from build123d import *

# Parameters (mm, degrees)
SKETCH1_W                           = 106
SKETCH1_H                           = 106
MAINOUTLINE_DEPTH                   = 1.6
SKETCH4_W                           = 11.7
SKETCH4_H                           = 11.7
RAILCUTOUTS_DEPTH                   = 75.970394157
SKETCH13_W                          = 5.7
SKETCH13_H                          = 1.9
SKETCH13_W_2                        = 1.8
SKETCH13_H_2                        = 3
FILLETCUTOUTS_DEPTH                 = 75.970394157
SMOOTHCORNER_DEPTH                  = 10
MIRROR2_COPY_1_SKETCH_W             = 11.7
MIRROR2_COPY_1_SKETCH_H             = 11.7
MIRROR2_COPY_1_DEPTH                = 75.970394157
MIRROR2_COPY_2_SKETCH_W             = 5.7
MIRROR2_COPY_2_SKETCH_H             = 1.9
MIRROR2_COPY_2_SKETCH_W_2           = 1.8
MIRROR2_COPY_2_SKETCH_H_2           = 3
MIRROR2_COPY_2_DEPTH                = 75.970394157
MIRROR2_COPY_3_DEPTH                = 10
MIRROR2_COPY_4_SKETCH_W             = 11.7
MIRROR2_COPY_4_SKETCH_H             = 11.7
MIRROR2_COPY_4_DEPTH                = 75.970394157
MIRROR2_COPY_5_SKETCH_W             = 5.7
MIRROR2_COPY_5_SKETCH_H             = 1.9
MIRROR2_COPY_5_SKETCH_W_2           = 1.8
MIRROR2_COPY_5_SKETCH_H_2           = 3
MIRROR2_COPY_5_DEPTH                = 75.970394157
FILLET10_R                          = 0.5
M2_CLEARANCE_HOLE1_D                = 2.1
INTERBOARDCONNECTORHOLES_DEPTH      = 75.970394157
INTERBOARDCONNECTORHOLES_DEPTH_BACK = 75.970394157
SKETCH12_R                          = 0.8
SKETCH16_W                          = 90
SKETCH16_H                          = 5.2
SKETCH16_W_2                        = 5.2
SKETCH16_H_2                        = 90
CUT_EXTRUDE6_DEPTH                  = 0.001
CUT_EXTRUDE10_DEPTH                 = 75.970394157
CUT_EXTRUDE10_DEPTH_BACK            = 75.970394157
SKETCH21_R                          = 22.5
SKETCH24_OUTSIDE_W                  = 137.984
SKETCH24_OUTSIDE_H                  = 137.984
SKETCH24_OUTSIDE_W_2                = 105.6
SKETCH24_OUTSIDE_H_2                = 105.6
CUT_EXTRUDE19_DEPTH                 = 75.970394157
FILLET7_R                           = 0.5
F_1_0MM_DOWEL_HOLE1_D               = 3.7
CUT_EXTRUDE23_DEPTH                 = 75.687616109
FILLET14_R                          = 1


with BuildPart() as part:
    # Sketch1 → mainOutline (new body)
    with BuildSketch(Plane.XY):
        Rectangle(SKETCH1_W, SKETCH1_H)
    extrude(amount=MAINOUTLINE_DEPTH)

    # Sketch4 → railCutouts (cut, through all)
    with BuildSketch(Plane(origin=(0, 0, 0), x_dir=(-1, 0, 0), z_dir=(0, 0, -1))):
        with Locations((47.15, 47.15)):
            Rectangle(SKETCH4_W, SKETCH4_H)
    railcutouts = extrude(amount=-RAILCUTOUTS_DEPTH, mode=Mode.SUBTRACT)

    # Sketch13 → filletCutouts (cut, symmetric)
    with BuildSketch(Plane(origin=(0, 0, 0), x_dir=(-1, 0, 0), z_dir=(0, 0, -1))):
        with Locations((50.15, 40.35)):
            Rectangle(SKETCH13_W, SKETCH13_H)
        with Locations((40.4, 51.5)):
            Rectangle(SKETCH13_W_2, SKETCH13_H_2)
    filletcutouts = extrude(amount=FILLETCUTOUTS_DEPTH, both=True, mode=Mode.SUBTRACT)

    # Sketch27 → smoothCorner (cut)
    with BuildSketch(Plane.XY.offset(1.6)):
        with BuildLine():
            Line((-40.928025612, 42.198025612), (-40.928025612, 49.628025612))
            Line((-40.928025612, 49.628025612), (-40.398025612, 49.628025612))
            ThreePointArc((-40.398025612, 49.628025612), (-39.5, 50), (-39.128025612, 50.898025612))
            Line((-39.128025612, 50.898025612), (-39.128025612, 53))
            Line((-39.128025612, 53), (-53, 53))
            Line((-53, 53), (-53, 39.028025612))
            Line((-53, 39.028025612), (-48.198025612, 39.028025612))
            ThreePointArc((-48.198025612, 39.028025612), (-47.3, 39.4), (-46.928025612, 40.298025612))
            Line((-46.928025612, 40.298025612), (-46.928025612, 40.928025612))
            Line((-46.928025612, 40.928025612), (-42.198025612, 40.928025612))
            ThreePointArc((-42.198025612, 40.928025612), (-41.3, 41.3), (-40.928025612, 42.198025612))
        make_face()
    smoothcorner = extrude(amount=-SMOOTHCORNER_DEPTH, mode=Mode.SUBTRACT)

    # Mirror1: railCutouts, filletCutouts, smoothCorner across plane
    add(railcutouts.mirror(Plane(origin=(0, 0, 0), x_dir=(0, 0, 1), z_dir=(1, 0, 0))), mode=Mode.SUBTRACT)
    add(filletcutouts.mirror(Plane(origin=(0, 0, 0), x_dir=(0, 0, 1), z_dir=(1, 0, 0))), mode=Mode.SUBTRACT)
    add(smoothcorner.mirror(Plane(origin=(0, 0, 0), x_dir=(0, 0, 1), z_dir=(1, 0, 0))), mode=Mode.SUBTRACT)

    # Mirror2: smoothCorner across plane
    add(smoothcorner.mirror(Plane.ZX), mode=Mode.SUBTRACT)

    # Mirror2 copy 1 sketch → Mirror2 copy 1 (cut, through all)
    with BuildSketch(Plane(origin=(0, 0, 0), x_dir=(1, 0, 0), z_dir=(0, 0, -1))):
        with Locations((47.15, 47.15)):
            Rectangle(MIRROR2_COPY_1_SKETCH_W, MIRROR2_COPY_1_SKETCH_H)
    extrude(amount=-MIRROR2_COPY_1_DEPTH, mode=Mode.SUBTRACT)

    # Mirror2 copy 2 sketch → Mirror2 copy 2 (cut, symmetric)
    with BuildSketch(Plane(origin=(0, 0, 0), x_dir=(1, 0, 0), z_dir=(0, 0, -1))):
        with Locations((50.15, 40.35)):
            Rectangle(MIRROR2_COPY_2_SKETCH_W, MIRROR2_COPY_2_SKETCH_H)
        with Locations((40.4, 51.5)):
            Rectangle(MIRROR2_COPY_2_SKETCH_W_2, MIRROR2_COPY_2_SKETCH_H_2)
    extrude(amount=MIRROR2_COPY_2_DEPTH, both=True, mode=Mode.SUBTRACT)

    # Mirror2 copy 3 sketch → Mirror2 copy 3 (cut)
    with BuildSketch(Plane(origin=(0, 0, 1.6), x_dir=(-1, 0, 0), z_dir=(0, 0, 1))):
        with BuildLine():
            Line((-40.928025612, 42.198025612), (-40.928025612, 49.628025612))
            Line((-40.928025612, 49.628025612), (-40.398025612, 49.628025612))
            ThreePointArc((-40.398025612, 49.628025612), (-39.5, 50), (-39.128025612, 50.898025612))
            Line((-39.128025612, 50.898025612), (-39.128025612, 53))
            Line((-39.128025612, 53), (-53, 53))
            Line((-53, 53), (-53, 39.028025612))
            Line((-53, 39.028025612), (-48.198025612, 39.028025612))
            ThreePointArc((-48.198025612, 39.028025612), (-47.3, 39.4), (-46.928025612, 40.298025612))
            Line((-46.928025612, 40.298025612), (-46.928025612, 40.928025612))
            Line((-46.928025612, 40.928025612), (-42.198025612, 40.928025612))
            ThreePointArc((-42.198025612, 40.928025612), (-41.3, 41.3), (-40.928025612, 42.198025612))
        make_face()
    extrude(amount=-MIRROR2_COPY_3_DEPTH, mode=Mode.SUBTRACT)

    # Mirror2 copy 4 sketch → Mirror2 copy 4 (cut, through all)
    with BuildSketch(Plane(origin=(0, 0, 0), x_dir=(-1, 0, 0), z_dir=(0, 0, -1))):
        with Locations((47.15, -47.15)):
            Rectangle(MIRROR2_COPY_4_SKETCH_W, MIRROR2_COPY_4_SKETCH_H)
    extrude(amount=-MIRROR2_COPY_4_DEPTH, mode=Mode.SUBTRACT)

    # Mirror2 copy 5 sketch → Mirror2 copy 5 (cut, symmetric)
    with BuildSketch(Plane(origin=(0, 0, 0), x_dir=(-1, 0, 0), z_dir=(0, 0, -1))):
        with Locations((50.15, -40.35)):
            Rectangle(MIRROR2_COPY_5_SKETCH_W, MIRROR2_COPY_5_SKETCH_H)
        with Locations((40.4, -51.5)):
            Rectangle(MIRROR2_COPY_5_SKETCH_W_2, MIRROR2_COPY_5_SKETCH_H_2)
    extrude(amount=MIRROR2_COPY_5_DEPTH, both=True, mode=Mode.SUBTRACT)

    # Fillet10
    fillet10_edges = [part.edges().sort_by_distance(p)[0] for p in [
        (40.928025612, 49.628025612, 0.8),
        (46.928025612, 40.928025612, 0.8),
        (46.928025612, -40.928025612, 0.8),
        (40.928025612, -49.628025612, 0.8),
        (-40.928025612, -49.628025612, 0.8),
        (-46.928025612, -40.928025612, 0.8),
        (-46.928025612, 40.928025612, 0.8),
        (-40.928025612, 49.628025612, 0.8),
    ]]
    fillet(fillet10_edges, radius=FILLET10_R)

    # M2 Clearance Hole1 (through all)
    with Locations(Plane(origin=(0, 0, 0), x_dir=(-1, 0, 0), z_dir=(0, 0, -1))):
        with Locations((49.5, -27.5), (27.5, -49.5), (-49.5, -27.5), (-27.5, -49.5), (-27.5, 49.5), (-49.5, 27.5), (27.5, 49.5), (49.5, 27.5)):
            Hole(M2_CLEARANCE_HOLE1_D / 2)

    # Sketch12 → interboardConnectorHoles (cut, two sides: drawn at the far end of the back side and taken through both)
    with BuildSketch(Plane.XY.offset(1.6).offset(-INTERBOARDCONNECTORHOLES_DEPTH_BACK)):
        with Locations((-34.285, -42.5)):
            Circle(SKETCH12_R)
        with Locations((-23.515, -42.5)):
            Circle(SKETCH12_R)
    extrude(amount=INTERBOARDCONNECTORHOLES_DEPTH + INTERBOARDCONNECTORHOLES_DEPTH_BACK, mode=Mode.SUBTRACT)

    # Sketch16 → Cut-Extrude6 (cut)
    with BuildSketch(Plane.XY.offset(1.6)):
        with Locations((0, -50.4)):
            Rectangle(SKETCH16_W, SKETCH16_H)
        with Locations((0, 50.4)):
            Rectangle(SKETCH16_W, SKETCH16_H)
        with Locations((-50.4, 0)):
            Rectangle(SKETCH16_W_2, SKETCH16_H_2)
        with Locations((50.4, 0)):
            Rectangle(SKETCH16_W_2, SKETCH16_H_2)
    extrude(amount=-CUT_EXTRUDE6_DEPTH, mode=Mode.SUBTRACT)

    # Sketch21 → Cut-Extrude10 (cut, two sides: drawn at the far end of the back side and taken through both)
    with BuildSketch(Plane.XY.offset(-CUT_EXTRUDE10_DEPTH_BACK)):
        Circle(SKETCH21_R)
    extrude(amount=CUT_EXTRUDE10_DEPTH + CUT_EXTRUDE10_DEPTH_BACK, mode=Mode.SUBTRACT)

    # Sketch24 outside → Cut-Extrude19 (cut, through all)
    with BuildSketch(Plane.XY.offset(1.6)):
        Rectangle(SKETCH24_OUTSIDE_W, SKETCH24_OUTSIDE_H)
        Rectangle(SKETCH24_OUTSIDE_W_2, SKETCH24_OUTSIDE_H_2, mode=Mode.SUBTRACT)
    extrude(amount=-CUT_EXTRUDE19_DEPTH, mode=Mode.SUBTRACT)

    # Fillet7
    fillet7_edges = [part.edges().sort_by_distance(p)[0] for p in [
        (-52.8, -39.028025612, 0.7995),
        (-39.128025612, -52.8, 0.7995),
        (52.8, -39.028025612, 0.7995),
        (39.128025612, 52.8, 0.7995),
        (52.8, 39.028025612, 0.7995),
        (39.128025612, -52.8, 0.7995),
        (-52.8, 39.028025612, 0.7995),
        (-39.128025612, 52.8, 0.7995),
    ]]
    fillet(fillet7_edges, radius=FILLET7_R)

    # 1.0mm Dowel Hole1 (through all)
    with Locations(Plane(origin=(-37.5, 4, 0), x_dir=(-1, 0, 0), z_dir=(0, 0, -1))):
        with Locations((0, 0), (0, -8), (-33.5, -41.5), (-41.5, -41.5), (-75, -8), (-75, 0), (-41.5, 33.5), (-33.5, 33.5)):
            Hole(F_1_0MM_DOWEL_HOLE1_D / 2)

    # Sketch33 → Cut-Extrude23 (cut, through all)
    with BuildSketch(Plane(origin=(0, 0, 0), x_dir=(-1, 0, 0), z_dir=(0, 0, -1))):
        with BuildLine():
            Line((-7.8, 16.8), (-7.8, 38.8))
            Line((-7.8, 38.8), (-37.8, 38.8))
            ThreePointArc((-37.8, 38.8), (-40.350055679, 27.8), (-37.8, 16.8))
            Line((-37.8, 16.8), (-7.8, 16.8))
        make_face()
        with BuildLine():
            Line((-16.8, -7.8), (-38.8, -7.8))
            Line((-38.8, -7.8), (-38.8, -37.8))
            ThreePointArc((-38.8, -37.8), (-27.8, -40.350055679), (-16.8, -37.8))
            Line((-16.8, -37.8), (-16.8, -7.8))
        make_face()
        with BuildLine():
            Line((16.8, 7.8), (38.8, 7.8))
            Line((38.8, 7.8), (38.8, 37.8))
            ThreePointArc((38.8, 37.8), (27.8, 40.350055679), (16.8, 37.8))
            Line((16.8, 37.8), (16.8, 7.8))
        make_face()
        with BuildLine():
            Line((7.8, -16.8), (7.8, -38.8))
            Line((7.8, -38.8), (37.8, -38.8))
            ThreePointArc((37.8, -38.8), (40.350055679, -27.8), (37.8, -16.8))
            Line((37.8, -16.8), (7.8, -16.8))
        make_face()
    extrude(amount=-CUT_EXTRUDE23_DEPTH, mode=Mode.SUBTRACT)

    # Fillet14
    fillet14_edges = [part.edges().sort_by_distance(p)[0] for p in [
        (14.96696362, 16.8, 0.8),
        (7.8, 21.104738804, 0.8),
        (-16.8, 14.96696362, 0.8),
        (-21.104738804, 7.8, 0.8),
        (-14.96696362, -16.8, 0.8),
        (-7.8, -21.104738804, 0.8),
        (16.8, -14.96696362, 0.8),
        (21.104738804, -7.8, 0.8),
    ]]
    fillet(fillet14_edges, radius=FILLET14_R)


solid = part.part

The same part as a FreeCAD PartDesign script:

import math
import FreeCAD as App
import Part
import Sketcher

V = App.Vector
Q = App.Units.Quantity


def edges_at(feature, points):
    """Names of the edges that pass closest to the given points."""
    edges = feature.Shape.Edges
    near = lambda p: min(range(len(edges)), key=lambda i: edges[i].distToShape(Part.Vertex(*p))[0])
    return sorted({f"Edge{near(p) + 1}" for p in points})


def add_polygon(sketch, points):
    """Adds a closed chain of lines whose ends are joined by coincident constraints."""
    first, n = sketch.GeometryCount, len(points)
    for a, b in zip(points, points[1:] + points[:1]):
        sketch.addGeometry(Part.LineSegment(App.Vector(*a, 0), App.Vector(*b, 0)), False)
    for i in range(n):
        sketch.addConstraint(Sketcher.Constraint("Coincident", first + i, 2, first + (i + 1) % n, 1))

doc = App.newDocument("Part")
body = doc.addObject("PartDesign::Body", "Body")

# Sketch on XY plane
sketch1 = doc.addObject("Sketcher::SketchObject", "Sketch")
body.addObject(sketch1)
sketch1.AttachmentSupport = (doc.XY_Plane, [""])
sketch1.MapMode = "FlatFace"
add_polygon(sketch1, [(-53, 53), (-53, -53), (53, -53), (53, 53)])  # lines 0-3
sketch1.addConstraint([
    Sketcher.Constraint("Vertical", 0),
    Sketcher.Constraint("Horizontal", 1),
    Sketcher.Constraint("Vertical", 2),
    Sketcher.Constraint("Horizontal", 3),
    Sketcher.Constraint("Symmetric", 0, 2, 2, 2, -1, 1),
    Sketcher.Constraint("Equal", 3, 0),
    Sketcher.Constraint("DistanceX", 1, 1, 1, 2, Q("106 mm")),
])
pad1 = doc.addObject("PartDesign::Pad", "Pad")
body.addObject(pad1)
pad1.Profile = sketch1
pad1.Length = 1.6

# Sketch on XY plane
sketch2 = doc.addObject("Sketcher::SketchObject", "Sketch001")
body.addObject(sketch2)
sketch2.AttachmentSupport = (doc.XY_Plane, [""])
sketch2.MapMode = "FlatFace"
add_polygon(sketch2, [(-41, 53), (-41, 41), (-53, 41), (-53, 53)])  # lines 0-3
sketch2.addConstraint([
    Sketcher.Constraint("Vertical", 0),
    Sketcher.Constraint("Horizontal", 1),
    Sketcher.Constraint("Vertical", 2),
    Sketcher.Constraint("Horizontal", 3),
    Sketcher.Constraint("Equal", 3, 0),
    Sketcher.Constraint("DistanceX", 1, 2, 1, 1, Q("11.7 mm")),
    Sketcher.Constraint("DistanceX", 1, 2, -1, 1, Q("53 mm")),
    Sketcher.Constraint("DistanceY", -1, 1, 2, 2, Q("53 mm")),
])
pocket1 = doc.addObject("PartDesign::Pocket", "Pocket")
body.addObject(pocket1)
pocket1.Profile = sketch2
pocket1.Type = "ThroughAll"
pocket1.Reversed = True

# Sketch on XY plane
sketch3 = doc.addObject("Sketcher::SketchObject", "Sketch002")
body.addObject(sketch3)
sketch3.AttachmentSupport = (doc.XY_Plane, [""])
sketch3.MapMode = "FlatFace"
add_polygon(sketch3, [(-47.3, 41.3), (-47.3, 39.4), (-53, 39.4), (-53, 41.3)])  # lines 0-3
add_polygon(sketch3, [(-39.5, 53), (-39.5, 50), (-41.3, 50), (-41.3, 53)])  # lines 4-7
sketch3.addConstraint([
    Sketcher.Constraint("Vertical", 0),
    Sketcher.Constraint("Horizontal", 1),
    Sketcher.Constraint("Vertical", 2),
    Sketcher.Constraint("Horizontal", 3),
    Sketcher.Constraint("Vertical", 4),
    Sketcher.Constraint("Horizontal", 5),
    Sketcher.Constraint("Vertical", 6),
    Sketcher.Constraint("Horizontal", 7),
    Sketcher.Constraint("DistanceY", 4, 2, 4, 1, Q("3 mm")),
    Sketcher.Constraint("DistanceX", 1, 2, 1, 1, Q("5.7 mm")),
    Sketcher.Constraint("DistanceX", 5, 2, 5, 1, Q("1.8 mm")),
    Sketcher.Constraint("DistanceY", 0, 2, 0, 1, Q("1.9 mm")),
    Sketcher.Constraint("DistanceX", 1, 2, -1, 1, Q("53 mm")),
    Sketcher.Constraint("DistanceY", -1, 1, 4, 2, Q("50 mm")),
    Sketcher.Constraint("DistanceX", 3, 2, 5, 2, Q("6 mm")),
    Sketcher.Constraint("DistanceY", -1, 1, 0, 2, Q("39.4 mm")),
])
pocket2 = doc.addObject("PartDesign::Pocket", "Pocket001")
body.addObject(pocket2)
pocket2.Profile = sketch3
pocket2.Length = 151.940788
pocket2.Midplane = True

# Sketch on XY plane
sketch4 = doc.addObject("Sketcher::SketchObject", "Sketch003")
body.addObject(sketch4)
sketch4.AttachmentSupport = (doc.XY_Plane, [""])
sketch4.MapMode = "FlatFace"
sketch4.AttachmentOffset = App.Placement(V(0, 0, 1.6), App.Rotation())
sketch4.addGeometry([
    Part.LineSegment(V(-40.9, 42.2, 0), V(-40.9, 49.6, 0)),  # 0
    Part.LineSegment(V(-40.9, 49.6, 0), V(-40.4, 49.6, 0)),  # 1
    Part.ArcOfCircle(Part.Circle(V(-40.4, 50.9, 0), V(0, 0, 1), 1.3), math.radians(-90), math.radians(0)),  # 2
    Part.LineSegment(V(-39.1, 50.9, 0), V(-39.1, 53, 0)),  # 3
    Part.LineSegment(V(-39.1, 53, 0), V(-53, 53, 0)),  # 4
    Part.LineSegment(V(-53, 53, 0), V(-53, 39, 0)),  # 5
    Part.LineSegment(V(-53, 39, 0), V(-48.2, 39, 0)),  # 6
    Part.ArcOfCircle(Part.Circle(V(-48.2, 40.3, 0), V(0, 0, 1), 1.3), math.radians(-90), math.radians(0)),  # 7
    Part.LineSegment(V(-46.9, 40.3, 0), V(-46.9, 40.9, 0)),  # 8
    Part.LineSegment(V(-46.9, 40.9, 0), V(-42.2, 40.9, 0)),  # 9
    Part.ArcOfCircle(Part.Circle(V(-42.2, 42.2, 0), V(0, 0, 1), 1.3), math.radians(-90), math.radians(0)),  # 10
], False)
sketch4.addConstraint([
    Sketcher.Constraint("Coincident", 0, 2, 1, 1),
    Sketcher.Constraint("Tangent", 1, 2, 2, 1),
    Sketcher.Constraint("Tangent", 2, 2, 3, 1),
    Sketcher.Constraint("Coincident", 3, 2, 4, 1),
    Sketcher.Constraint("Coincident", 4, 2, 5, 1),
    Sketcher.Constraint("Coincident", 5, 2, 6, 1),
    Sketcher.Constraint("Tangent", 6, 2, 7, 1),
    Sketcher.Constraint("Tangent", 7, 2, 8, 1),
    Sketcher.Constraint("Coincident", 8, 2, 9, 1),
    Sketcher.Constraint("Tangent", 9, 2, 10, 1),
    Sketcher.Constraint("Tangent", 10, 2, 0, 1),
    Sketcher.Constraint("Vertical", 0),
    Sketcher.Constraint("Horizontal", 1),
    Sketcher.Constraint("Vertical", 3),
    Sketcher.Constraint("Horizontal", 4),
    Sketcher.Constraint("Vertical", 5),
    Sketcher.Constraint("Horizontal", 6),
    Sketcher.Constraint("Vertical", 8),
    Sketcher.Constraint("Horizontal", 9),
    Sketcher.Constraint("Equal", 2, 7),
    Sketcher.Constraint("Equal", 7, 10),
    Sketcher.Constraint("Radius", 2, Q("1.27 mm")),
    Sketcher.Constraint("DistanceY", -1, 1, 3, 2, Q("53 mm")),
    Sketcher.Constraint("DistanceX", 4, 2, -1, 1, Q("53 mm")),
    Sketcher.Constraint("DistanceX", 7, 3, 10, 3, Q("6 mm")),
    Sketcher.Constraint("DistanceX", 1, 1, 1, 2, Q("0.53 mm")),
    Sketcher.Constraint("DistanceY", 0, 1, 0, 2, Q("7.43 mm")),
    Sketcher.Constraint("DistanceY", 8, 1, 8, 2, Q("0.63 mm")),
    Sketcher.Constraint("DistanceX", 4, 2, 4, 1, Q("13.871974 mm")),
    Sketcher.Constraint("DistanceY", 3, 1, 3, 2, Q("2.101974 mm")),
])
pocket3 = doc.addObject("PartDesign::Pocket", "Pocket002")
body.addObject(pocket3)
pocket3.Profile = sketch4
pocket3.Length = 10
doc.recompute()

mirrored = doc.addObject("PartDesign::Mirrored", "Mirrored")
body.addObject(mirrored)
mirrored.Originals = [pocket1, pocket2, pocket3]
mirrored.MirrorPlane = (doc.YZ_Plane, [""])
body.Tip = mirrored
doc.recompute()

mirrored2 = doc.addObject("PartDesign::Mirrored", "Mirrored001")
body.addObject(mirrored2)
mirrored2.Originals = [pocket3]
mirrored2.MirrorPlane = (doc.XZ_Plane, [""])
body.Tip = mirrored2

# Sketch on XY plane
sketch5 = doc.addObject("Sketcher::SketchObject", "Sketch004")
body.addObject(sketch5)
sketch5.AttachmentSupport = (doc.XY_Plane, [""])
sketch5.MapMode = "FlatFace"
add_polygon(sketch5, [(41, -53), (41, -41), (53, -41), (53, -53)])  # lines 0-3
sketch5.addConstraint([
    Sketcher.Constraint("Vertical", 0),
    Sketcher.Constraint("Horizontal", 1),
    Sketcher.Constraint("Vertical", 2),
    Sketcher.Constraint("Horizontal", 3),
    Sketcher.Constraint("Equal", 3, 0),
    Sketcher.Constraint("DistanceX", 1, 1, 1, 2, Q("11.7 mm")),
    Sketcher.Constraint("DistanceX", -1, 1, 1, 2, Q("53 mm")),
    Sketcher.Constraint("DistanceY", 2, 2, -1, 1, Q("53 mm")),
])
pocket4 = doc.addObject("PartDesign::Pocket", "Pocket003")
body.addObject(pocket4)
pocket4.Profile = sketch5
pocket4.Type = "ThroughAll"
pocket4.Reversed = True

# Sketch on XY plane
sketch6 = doc.addObject("Sketcher::SketchObject", "Sketch005")
body.addObject(sketch6)
sketch6.AttachmentSupport = (doc.XY_Plane, [""])
sketch6.MapMode = "FlatFace"
add_polygon(sketch6, [(47.3, -41.3), (47.3, -39.4), (53, -39.4), (53, -41.3)])  # lines 0-3
add_polygon(sketch6, [(39.5, -53), (39.5, -50), (41.3, -50), (41.3, -53)])  # lines 4-7
sketch6.addConstraint([
    Sketcher.Constraint("Vertical", 0),
    Sketcher.Constraint("Horizontal", 1),
    Sketcher.Constraint("Vertical", 2),
    Sketcher.Constraint("Horizontal", 3),
    Sketcher.Constraint("Vertical", 4),
    Sketcher.Constraint("Horizontal", 5),
    Sketcher.Constraint("Vertical", 6),
    Sketcher.Constraint("Horizontal", 7),
    Sketcher.Constraint("DistanceY", 4, 1, 4, 2, Q("3 mm")),
    Sketcher.Constraint("DistanceX", 1, 1, 1, 2, Q("5.7 mm")),
    Sketcher.Constraint("DistanceX", 5, 1, 5, 2, Q("1.8 mm")),
    Sketcher.Constraint("DistanceY", 0, 1, 0, 2, Q("1.9 mm")),
    Sketcher.Constraint("DistanceX", -1, 1, 1, 2, Q("53 mm")),
    Sketcher.Constraint("DistanceY", 4, 2, -1, 1, Q("50 mm")),
    Sketcher.Constraint("DistanceX", 5, 2, 3, 2, Q("6 mm")),
    Sketcher.Constraint("DistanceY", 0, 2, -1, 1, Q("39.4 mm")),
])
pocket5 = doc.addObject("PartDesign::Pocket", "Pocket004")
body.addObject(pocket5)
pocket5.Profile = sketch6
pocket5.Length = 151.940788
pocket5.Midplane = True

# Sketch on XY plane
sketch7 = doc.addObject("Sketcher::SketchObject", "Sketch006")
body.addObject(sketch7)
sketch7.AttachmentSupport = (doc.XY_Plane, [""])
sketch7.MapMode = "FlatFace"
sketch7.AttachmentOffset = App.Placement(V(0, 0, 1.6), App.Rotation())
sketch7.addGeometry([
    Part.LineSegment(V(40.9, -42.2, 0), V(40.9, -49.6, 0)),  # 0
    Part.LineSegment(V(40.9, -49.6, 0), V(40.4, -49.6, 0)),  # 1
    Part.ArcOfCircle(Part.Circle(V(40.4, -50.9, 0), V(0, 0, 1), 1.3), math.radians(90), math.radians(180)),  # 2
    Part.LineSegment(V(39.1, -50.9, 0), V(39.1, -53, 0)),  # 3
    Part.LineSegment(V(39.1, -53, 0), V(53, -53, 0)),  # 4
    Part.LineSegment(V(53, -53, 0), V(53, -39, 0)),  # 5
    Part.LineSegment(V(53, -39, 0), V(48.2, -39, 0)),  # 6
    Part.ArcOfCircle(Part.Circle(V(48.2, -40.3, 0), V(0, 0, 1), 1.3), math.radians(90), math.radians(180)),  # 7
    Part.LineSegment(V(46.9, -40.3, 0), V(46.9, -40.9, 0)),  # 8
    Part.LineSegment(V(46.9, -40.9, 0), V(42.2, -40.9, 0)),  # 9
    Part.ArcOfCircle(Part.Circle(V(42.2, -42.2, 0), V(0, 0, 1), 1.3), math.radians(90), math.radians(180)),  # 10
], False)
sketch7.addConstraint([
    Sketcher.Constraint("Coincident", 0, 2, 1, 1),
    Sketcher.Constraint("Tangent", 1, 2, 2, 1),
    Sketcher.Constraint("Tangent", 2, 2, 3, 1),
    Sketcher.Constraint("Coincident", 3, 2, 4, 1),
    Sketcher.Constraint("Coincident", 4, 2, 5, 1),
    Sketcher.Constraint("Coincident", 5, 2, 6, 1),
    Sketcher.Constraint("Tangent", 6, 2, 7, 1),
    Sketcher.Constraint("Tangent", 7, 2, 8, 1),
    Sketcher.Constraint("Coincident", 8, 2, 9, 1),
    Sketcher.Constraint("Tangent", 9, 2, 10, 1),
    Sketcher.Constraint("Tangent", 10, 2, 0, 1),
    Sketcher.Constraint("Vertical", 0),
    Sketcher.Constraint("Horizontal", 1),
    Sketcher.Constraint("Vertical", 3),
    Sketcher.Constraint("Horizontal", 4),
    Sketcher.Constraint("Vertical", 5),
    Sketcher.Constraint("Horizontal", 6),
    Sketcher.Constraint("Vertical", 8),
    Sketcher.Constraint("Horizontal", 9),
    Sketcher.Constraint("Equal", 2, 7),
    Sketcher.Constraint("Equal", 7, 10),
    Sketcher.Constraint("Radius", 2, Q("1.27 mm")),
    Sketcher.Constraint("DistanceY", 3, 2, -1, 1, Q("53 mm")),
    Sketcher.Constraint("DistanceX", -1, 1, 4, 2, Q("53 mm")),
    Sketcher.Constraint("DistanceX", 10, 3, 7, 3, Q("6 mm")),
    Sketcher.Constraint("DistanceX", 1, 2, 1, 1, Q("0.53 mm")),
    Sketcher.Constraint("DistanceY", 0, 2, 0, 1, Q("7.43 mm")),
    Sketcher.Constraint("DistanceY", 8, 2, 8, 1, Q("0.63 mm")),
    Sketcher.Constraint("DistanceX", 4, 1, 4, 2, Q("13.871974 mm")),
    Sketcher.Constraint("DistanceY", 3, 2, 3, 1, Q("2.101974 mm")),
])
pocket6 = doc.addObject("PartDesign::Pocket", "Pocket005")
body.addObject(pocket6)
pocket6.Profile = sketch7
pocket6.Length = 10

# Sketch on XY plane
sketch8 = doc.addObject("Sketcher::SketchObject", "Sketch007")
body.addObject(sketch8)
sketch8.AttachmentSupport = (doc.XY_Plane, [""])
sketch8.MapMode = "FlatFace"
add_polygon(sketch8, [(-41, -41), (-41, -53), (-53, -53), (-53, -41)])  # lines 0-3
sketch8.addConstraint([
    Sketcher.Constraint("Vertical", 0),
    Sketcher.Constraint("Horizontal", 1),
    Sketcher.Constraint("Vertical", 2),
    Sketcher.Constraint("Horizontal", 3),
    Sketcher.Constraint("Equal", 3, 0),
    Sketcher.Constraint("DistanceX", 1, 2, 1, 1, Q("11.7 mm")),
    Sketcher.Constraint("DistanceY", 0, 2, -1, 1, Q("53 mm")),
    Sketcher.Constraint("DistanceX", 1, 2, -1, 1, Q("53 mm")),
])
pocket7 = doc.addObject("PartDesign::Pocket", "Pocket006")
body.addObject(pocket7)
pocket7.Profile = sketch8
pocket7.Type = "ThroughAll"
pocket7.Reversed = True

# Sketch on XY plane
sketch9 = doc.addObject("Sketcher::SketchObject", "Sketch008")
body.addObject(sketch9)
sketch9.AttachmentSupport = (doc.XY_Plane, [""])
sketch9.MapMode = "FlatFace"
add_polygon(sketch9, [(-47.3, -39.4), (-47.3, -41.3), (-53, -41.3), (-53, -39.4)])  # lines 0-3
add_polygon(sketch9, [(-39.5, -50), (-39.5, -53), (-41.3, -53), (-41.3, -50)])  # lines 4-7
sketch9.addConstraint([
    Sketcher.Constraint("Vertical", 0),
    Sketcher.Constraint("Horizontal", 1),
    Sketcher.Constraint("Vertical", 2),
    Sketcher.Constraint("Horizontal", 3),
    Sketcher.Constraint("Vertical", 4),
    Sketcher.Constraint("Horizontal", 5),
    Sketcher.Constraint("Vertical", 6),
    Sketcher.Constraint("Horizontal", 7),
    Sketcher.Constraint("DistanceY", 4, 2, 4, 1, Q("3 mm")),
    Sketcher.Constraint("DistanceX", 1, 2, 1, 1, Q("5.7 mm")),
    Sketcher.Constraint("DistanceX", 5, 2, 5, 1, Q("1.8 mm")),
    Sketcher.Constraint("DistanceY", 0, 2, 0, 1, Q("1.9 mm")),
    Sketcher.Constraint("DistanceX", 1, 2, -1, 1, Q("53 mm")),
    Sketcher.Constraint("DistanceY", 4, 2, -1, 1, Q("53 mm")),
    Sketcher.Constraint("DistanceX", 0, 2, 5, 2, Q("6 mm")),
    Sketcher.Constraint("DistanceY", 0, 2, -1, 1, Q("41.3 mm")),
])
pocket8 = doc.addObject("PartDesign::Pocket", "Pocket007")
body.addObject(pocket8)
pocket8.Profile = sketch9
pocket8.Length = 151.940788
pocket8.Midplane = True
doc.recompute()

fillet = doc.addObject("PartDesign::Fillet", "Fillet")
body.addObject(fillet)
fillet.Base = (pocket8, edges_at(pocket8, [
    (40.928, 49.628, 0.8),
    (46.928, 40.928, 0.8),
    (46.928, -40.928, 0.8),
    (40.928, -49.628, 0.8),
    (-40.928, -49.628, 0.8),
    (-46.928, -40.928, 0.8),
    (-46.928, 40.928, 0.8),
    (-40.928, 49.628, 0.8),
]))
fillet.Radius = 0.5

# Sketch on XY plane
sketch10 = doc.addObject("Sketcher::SketchObject", "Sketch009")
body.addObject(sketch10)
sketch10.AttachmentSupport = (doc.XY_Plane, [""])
sketch10.MapMode = "FlatFace"
sketch10.addGeometry([
    Part.Circle(V(-49.5, -27.5, 0), V(0, 0, 1), 1.1),  # 0
    Part.Circle(V(-27.5, -49.5, 0), V(0, 0, 1), 1.1),  # 1
    Part.Circle(V(49.5, -27.5, 0), V(0, 0, 1), 1.1),  # 2
    Part.Circle(V(27.5, -49.5, 0), V(0, 0, 1), 1.1),  # 3
    Part.Circle(V(27.5, 49.5, 0), V(0, 0, 1), 1.1),  # 4
    Part.Circle(V(49.5, 27.5, 0), V(0, 0, 1), 1.1),  # 5
    Part.Circle(V(-27.5, 49.5, 0), V(0, 0, 1), 1.1),  # 6
    Part.Circle(V(-49.5, 27.5, 0), V(0, 0, 1), 1.1),  # 7
], False)
sketch10.addConstraint([
    Sketcher.Constraint("Equal", 0, 1),
    Sketcher.Constraint("Equal", 1, 2),
    Sketcher.Constraint("Equal", 2, 3),
    Sketcher.Constraint("Equal", 3, 4),
    Sketcher.Constraint("Equal", 4, 5),
    Sketcher.Constraint("Equal", 5, 6),
    Sketcher.Constraint("Equal", 6, 7),
    Sketcher.Constraint("Symmetric", 1, 3, 4, 3, -1, 1),
    Sketcher.Constraint("Symmetric", 0, 3, 5, 3, -1, 1),
    Sketcher.Constraint("Symmetric", 3, 3, 6, 3, -1, 1),
    Sketcher.Constraint("Symmetric", 2, 3, 7, 3, -1, 1),
    Sketcher.Constraint("Symmetric", 0, 3, 2, 3, -2),
    Sketcher.Constraint("Symmetric", 1, 3, 3, 3, -2),
    Sketcher.Constraint("Diameter", 0, Q("2.1 mm")),
    Sketcher.Constraint("DistanceX", 0, 3, 1, 3, Q("22 mm")),
    Sketcher.Constraint("DistanceY", 1, 3, 0, 3, Q("22 mm")),
    Sketcher.Constraint("DistanceX", 1, 3, 2, 3, Q("77 mm")),
    Sketcher.Constraint("DistanceY", 2, 3, 4, 3, Q("77 mm")),
])
doc.recompute()
hole = doc.addObject("PartDesign::Hole", "Hole")
body.addObject(hole)
hole.Profile = sketch10
hole.ThreadType = "None"
hole.Diameter = 2.1
hole.DepthType = "ThroughAll"
hole.Reversed = True

# Sketch on XY plane
sketch11 = doc.addObject("Sketcher::SketchObject", "Sketch010")
body.addObject(sketch11)
sketch11.AttachmentSupport = (doc.XY_Plane, [""])
sketch11.MapMode = "FlatFace"
sketch11.AttachmentOffset = App.Placement(V(0, 0, 1.6), App.Rotation())
sketch11.addGeometry([
    Part.Circle(V(-34.3, -42.5, 0), V(0, 0, 1), 0.8),
    Part.Circle(V(-23.5, -42.5, 0), V(0, 0, 1), 0.8),
], False)
sketch11.addConstraint([
    Sketcher.Constraint("Equal", 0, 1),
    Sketcher.Constraint("Horizontal", 0, 3, 1, 3),
    Sketcher.Constraint("Diameter", 0, Q("1.6 mm")),
    Sketcher.Constraint("DistanceY", 0, 3, -1, 1, Q("42.5 mm")),
    Sketcher.Constraint("DistanceX", 0, 3, 1, 3, Q("10.77 mm")),
    Sketcher.Constraint("DistanceX", 0, 3, -1, 1, Q("34.285 mm")),
])
pocket9 = doc.addObject("PartDesign::Pocket", "Pocket008")
body.addObject(pocket9)
pocket9.Profile = sketch11
pocket9.Type = "ThroughAll"
pocket9.Midplane = True

# Sketch on XY plane
sketch12 = doc.addObject("Sketcher::SketchObject", "Sketch011")
body.addObject(sketch12)
sketch12.AttachmentSupport = (doc.XY_Plane, [""])
sketch12.MapMode = "FlatFace"
sketch12.AttachmentOffset = App.Placement(V(0, 0, 1.6), App.Rotation())
add_polygon(sketch12, [(-45, -48), (-45, -53), (45, -53), (45, -48)])  # lines 0-3
add_polygon(sketch12, [(-45, 53), (-45, 48), (45, 48), (45, 53)])  # lines 4-7
add_polygon(sketch12, [(-53, 45), (-53, -45), (-48, -45), (-48, 45)])  # lines 8-11
add_polygon(sketch12, [(48, 45), (48, -45), (53, -45), (53, 45)])  # lines 12-15
sketch12.addConstraint([
    Sketcher.Constraint("Vertical", 0),
    Sketcher.Constraint("Horizontal", 1),
    Sketcher.Constraint("Vertical", 2),
    Sketcher.Constraint("Horizontal", 3),
    Sketcher.Constraint("Vertical", 4),
    Sketcher.Constraint("Horizontal", 5),
    Sketcher.Constraint("Vertical", 6),
    Sketcher.Constraint("Horizontal", 7),
    Sketcher.Constraint("Vertical", 8),
    Sketcher.Constraint("Horizontal", 9),
    Sketcher.Constraint("Vertical", 10),
    Sketcher.Constraint("Horizontal", 11),
    Sketcher.Constraint("Vertical", 12),
    Sketcher.Constraint("Horizontal", 13),
    Sketcher.Constraint("Vertical", 14),
    Sketcher.Constraint("Horizontal", 15),
    Sketcher.Constraint("Symmetric", 2, 2, 4, 2, -1, 1),
    Sketcher.Constraint("Symmetric", 0, 2, 6, 2, -1, 1),
    Sketcher.Constraint("Symmetric", 10, 2, 12, 2, -1, 1),
    Sketcher.Constraint("Symmetric", 8, 2, 14, 2, -1, 1),
    Sketcher.Constraint("Horizontal", 9, 2, 12, 2),
    Sketcher.Constraint("Vertical", 3, 2, 4, 2),
    Sketcher.Constraint("Equal", 15, 0),
    Sketcher.Constraint("Equal", 7, 8),
    Sketcher.Constraint("DistanceX", 1, 1, 1, 2, Q("90 mm")),
    Sketcher.Constraint("DistanceX", 9, 1, 9, 2, Q("5.2 mm")),
    Sketcher.Constraint("DistanceY", 0, 2, -1, 1, Q("53 mm")),
    Sketcher.Constraint("DistanceX", 8, 2, -1, 1, Q("53 mm")),
])
pocket10 = doc.addObject("PartDesign::Pocket", "Pocket009")
body.addObject(pocket10)
pocket10.Profile = sketch12
pocket10.Length = 0.001

# Sketch on XY plane
sketch13 = doc.addObject("Sketcher::SketchObject", "Sketch012")
body.addObject(sketch13)
sketch13.AttachmentSupport = (doc.XY_Plane, [""])
sketch13.MapMode = "FlatFace"
sketch13.addGeometry(Part.Circle(V(0, 0, 0), V(0, 0, 1), 22), False)
sketch13.addConstraint([
    Sketcher.Constraint("Coincident", 0, 3, -1, 1),
    Sketcher.Constraint("Diameter", 0, Q("45 mm")),
])
pocket11 = doc.addObject("PartDesign::Pocket", "Pocket010")
body.addObject(pocket11)
pocket11.Profile = sketch13
pocket11.Type = "ThroughAll"
pocket11.Midplane = True

# Sketch on XY plane
sketch14 = doc.addObject("Sketcher::SketchObject", "Sketch013")
body.addObject(sketch14)
sketch14.AttachmentSupport = (doc.XY_Plane, [""])
sketch14.MapMode = "FlatFace"
sketch14.AttachmentOffset = App.Placement(V(0, 0, 1.6), App.Rotation())
add_polygon(sketch14, [(-69, 69), (-69, -69), (69, -69), (69, 69)])  # lines 0-3
add_polygon(sketch14, [(53, -53), (-53, -53), (-53, 53), (53, 53)])  # lines 4-7
sketch14.addConstraint([
    Sketcher.Constraint("Vertical", 0),
    Sketcher.Constraint("Horizontal", 1),
    Sketcher.Constraint("Vertical", 2),
    Sketcher.Constraint("Horizontal", 3),
    Sketcher.Constraint("Horizontal", 4),
    Sketcher.Constraint("Vertical", 5),
    Sketcher.Constraint("Horizontal", 6),
    Sketcher.Constraint("Vertical", 7),
    Sketcher.Constraint("Symmetric", 0, 2, 2, 2, -1, 1),
    Sketcher.Constraint("Symmetric", 4, 2, 6, 2, -1, 1),
    Sketcher.Constraint("Equal", 3, 0),
    Sketcher.Constraint("Equal", 6, 5),
    Sketcher.Constraint("DistanceX", 4, 2, 4, 1, Q("105.6 mm")),
    Sketcher.Constraint("DistanceX", 1, 1, 1, 2, Q("137.984 mm")),
])
pocket12 = doc.addObject("PartDesign::Pocket", "Pocket011")
body.addObject(pocket12)
pocket12.Profile = sketch14
pocket12.Type = "ThroughAll"
doc.recompute()

fillet2 = doc.addObject("PartDesign::Fillet", "Fillet001")
body.addObject(fillet2)
fillet2.Base = (pocket12, edges_at(pocket12, [
    (-52.8, -39.028, 0.799),
    (-39.128, -52.8, 0.799),
    (52.8, -39.028, 0.799),
    (39.128, 52.8, 0.799),
    (52.8, 39.028, 0.799),
    (39.128, -52.8, 0.799),
    (-52.8, 39.028, 0.799),
    (-39.128, 52.8, 0.799),
]))
fillet2.Radius = 0.5

# Sketch on XY plane
sketch15 = doc.addObject("Sketcher::SketchObject", "Sketch014")
body.addObject(sketch15)
sketch15.AttachmentSupport = (doc.XY_Plane, [""])
sketch15.MapMode = "FlatFace"
sketch15.addGeometry([
    Part.Circle(V(-37.5, 4, 0), V(0, 0, 1), 1.9),  # 0
    Part.Circle(V(-37.5, -4, 0), V(0, 0, 1), 1.9),  # 1
    Part.Circle(V(-4, -37.5, 0), V(0, 0, 1), 1.9),  # 2
    Part.Circle(V(4, -37.5, 0), V(0, 0, 1), 1.9),  # 3
    Part.Circle(V(37.5, -4, 0), V(0, 0, 1), 1.9),  # 4
    Part.Circle(V(37.5, 4, 0), V(0, 0, 1), 1.9),  # 5
    Part.Circle(V(4, 37.5, 0), V(0, 0, 1), 1.9),  # 6
    Part.Circle(V(-4, 37.5, 0), V(0, 0, 1), 1.9),  # 7
], False)
sketch15.addConstraint([
    Sketcher.Constraint("Equal", 0, 1),
    Sketcher.Constraint("Equal", 1, 2),
    Sketcher.Constraint("Equal", 2, 3),
    Sketcher.Constraint("Equal", 3, 4),
    Sketcher.Constraint("Equal", 4, 5),
    Sketcher.Constraint("Equal", 5, 6),
    Sketcher.Constraint("Equal", 6, 7),
    Sketcher.Constraint("Symmetric", 0, 3, 4, 3, -1, 1),
    Sketcher.Constraint("Symmetric", 1, 3, 5, 3, -1, 1),
    Sketcher.Constraint("Symmetric", 2, 3, 6, 3, -1, 1),
    Sketcher.Constraint("Symmetric", 3, 3, 7, 3, -1, 1),
    Sketcher.Constraint("Symmetric", 2, 3, 3, 3, -2),
    Sketcher.Constraint("Symmetric", 1, 3, 4, 3, -2),
    Sketcher.Constraint("Diameter", 0, Q("3.7 mm")),
    Sketcher.Constraint("DistanceY", -1, 1, 0, 3, Q("4 mm")),
    Sketcher.Constraint("DistanceX", 2, 3, -1, 1, Q("4 mm")),
    Sketcher.Constraint("DistanceX", 1, 3, 4, 3, Q("75 mm")),
    Sketcher.Constraint("DistanceY", 3, 3, 6, 3, Q("75 mm")),
])
doc.recompute()
hole2 = doc.addObject("PartDesign::Hole", "Hole001")
body.addObject(hole2)
hole2.Profile = sketch15
hole2.ThreadType = "None"
hole2.Diameter = 3.7
hole2.DepthType = "ThroughAll"
hole2.Reversed = True

# Sketch on XY plane
sketch16 = doc.addObject("Sketcher::SketchObject", "Sketch015")
body.addObject(sketch16)
sketch16.AttachmentSupport = (doc.XY_Plane, [""])
sketch16.MapMode = "FlatFace"
sketch16.addGeometry([
    Part.LineSegment(V(8, 17, 0), V(8, 39, 0)),  # 0
    Part.LineSegment(V(8, 39, 0), V(38, 39, 0)),  # 1
    Part.ArcOfCircle(Part.Circle(V(15, 28, 0), V(0, 0, 1), 25), math.radians(-26), math.radians(26)),  # 2
    Part.LineSegment(V(38, 17, 0), V(8, 17, 0)),  # 3
    Part.LineSegment(V(17, -8, 0), V(39, -8, 0)),  # 4
    Part.LineSegment(V(39, -8, 0), V(39, -38, 0)),  # 5
    Part.ArcOfCircle(Part.Circle(V(28, -15, 0), V(0, 0, 1), 25), math.radians(-116), math.radians(-64)),  # 6
    Part.LineSegment(V(17, -38, 0), V(17, -8, 0)),  # 7
    Part.LineSegment(V(-17, 8, 0), V(-39, 8, 0)),  # 8
    Part.LineSegment(V(-39, 8, 0), V(-39, 38, 0)),  # 9
    Part.ArcOfCircle(Part.Circle(V(-28, 15, 0), V(0, 0, 1), 25), math.radians(64), math.radians(116)),  # 10
    Part.LineSegment(V(-17, 38, 0), V(-17, 8, 0)),  # 11
    Part.LineSegment(V(-8, -17, 0), V(-8, -39, 0)),  # 12
    Part.LineSegment(V(-8, -39, 0), V(-38, -39, 0)),  # 13
    Part.ArcOfCircle(Part.Circle(V(-15, -28, 0), V(0, 0, 1), 25), math.radians(154), math.radians(206)),  # 14
    Part.LineSegment(V(-38, -17, 0), V(-8, -17, 0)),  # 15
], False)
sketch16.addConstraint([
    Sketcher.Constraint("Coincident", 0, 2, 1, 1),
    Sketcher.Constraint("Coincident", 1, 2, 2, 2),
    Sketcher.Constraint("Coincident", 2, 1, 3, 1),
    Sketcher.Constraint("Coincident", 3, 2, 0, 1),
    Sketcher.Constraint("Coincident", 4, 2, 5, 1),
    Sketcher.Constraint("Coincident", 5, 2, 6, 2),
    Sketcher.Constraint("Coincident", 6, 1, 7, 1),
    Sketcher.Constraint("Coincident", 7, 2, 4, 1),
    Sketcher.Constraint("Coincident", 8, 2, 9, 1),
    Sketcher.Constraint("Coincident", 9, 2, 10, 2),
    Sketcher.Constraint("Coincident", 10, 1, 11, 1),
    Sketcher.Constraint("Coincident", 11, 2, 8, 1),
    Sketcher.Constraint("Coincident", 12, 2, 13, 1),
    Sketcher.Constraint("Coincident", 13, 2, 14, 2),
    Sketcher.Constraint("Coincident", 14, 1, 15, 1),
    Sketcher.Constraint("Coincident", 15, 2, 12, 1),
    Sketcher.Constraint("Vertical", 0),
    Sketcher.Constraint("Horizontal", 1),
    Sketcher.Constraint("Horizontal", 3),
    Sketcher.Constraint("Horizontal", 4),
    Sketcher.Constraint("Vertical", 5),
    Sketcher.Constraint("Vertical", 7),
    Sketcher.Constraint("Horizontal", 8),
    Sketcher.Constraint("Vertical", 9),
    Sketcher.Constraint("Vertical", 11),
    Sketcher.Constraint("Vertical", 12),
    Sketcher.Constraint("Horizontal", 13),
    Sketcher.Constraint("Horizontal", 15),
    Sketcher.Constraint("Equal", 2, 6),
    Sketcher.Constraint("Equal", 6, 10),
    Sketcher.Constraint("Equal", 10, 14),
    Sketcher.Constraint("Symmetric", 6, 3, 10, 3, -1, 1),
    Sketcher.Constraint("Symmetric", 2, 3, 14, 3, -1, 1),
    Sketcher.Constraint("Symmetric", 4, 2, 8, 2, -1, 1),
    Sketcher.Constraint("Symmetric", 0, 2, 12, 2, -1, 1),
    Sketcher.Constraint("Horizontal", 5, 2, 6, 1),
    Sketcher.Constraint("Horizontal", 9, 2, 10, 1),
    Sketcher.Constraint("Vertical", 1, 2, 2, 1),
    Sketcher.Constraint("Vertical", 13, 2, 14, 1),
    Sketcher.Constraint("Equal", 8, 0),
    Sketcher.Constraint("Equal", 15, 5),
    Sketcher.Constraint("Radius", 2, Q("25 mm")),
    Sketcher.Constraint("DistanceX", 1, 1, 1, 2, Q("30 mm")),
    Sketcher.Constraint("DistanceX", 4, 1, 4, 2, Q("22 mm")),
    Sketcher.Constraint("DistanceX", 0, 2, 6, 3, Q("20 mm")),
    Sketcher.Constraint("DistanceY", 5, 2, 14, 3, Q("10 mm")),
    Sketcher.Constraint("DistanceY", -1, 1, 2, 3, Q("27.8 mm")),
    Sketcher.Constraint("DistanceX", -1, 1, 6, 3, Q("27.8 mm")),
])
pocket13 = doc.addObject("PartDesign::Pocket", "Pocket012")
body.addObject(pocket13)
pocket13.Profile = sketch16
pocket13.Type = "ThroughAll"
pocket13.Reversed = True
doc.recompute()

fillet3 = doc.addObject("PartDesign::Fillet", "Fillet002")
body.addObject(fillet3)
fillet3.Base = (pocket13, edges_at(pocket13, [
    (14.967, 16.8, 0.8),
    (7.8, 21.105, 0.8),
    (-16.8, 14.967, 0.8),
    (-21.105, 7.8, 0.8),
    (-14.967, -16.8, 0.8),
    (-7.8, -21.105, 0.8),
    (16.8, -14.967, 0.8),
    (21.105, -7.8, 0.8),
]))
fillet3.Radius = 1

doc.recompute()
